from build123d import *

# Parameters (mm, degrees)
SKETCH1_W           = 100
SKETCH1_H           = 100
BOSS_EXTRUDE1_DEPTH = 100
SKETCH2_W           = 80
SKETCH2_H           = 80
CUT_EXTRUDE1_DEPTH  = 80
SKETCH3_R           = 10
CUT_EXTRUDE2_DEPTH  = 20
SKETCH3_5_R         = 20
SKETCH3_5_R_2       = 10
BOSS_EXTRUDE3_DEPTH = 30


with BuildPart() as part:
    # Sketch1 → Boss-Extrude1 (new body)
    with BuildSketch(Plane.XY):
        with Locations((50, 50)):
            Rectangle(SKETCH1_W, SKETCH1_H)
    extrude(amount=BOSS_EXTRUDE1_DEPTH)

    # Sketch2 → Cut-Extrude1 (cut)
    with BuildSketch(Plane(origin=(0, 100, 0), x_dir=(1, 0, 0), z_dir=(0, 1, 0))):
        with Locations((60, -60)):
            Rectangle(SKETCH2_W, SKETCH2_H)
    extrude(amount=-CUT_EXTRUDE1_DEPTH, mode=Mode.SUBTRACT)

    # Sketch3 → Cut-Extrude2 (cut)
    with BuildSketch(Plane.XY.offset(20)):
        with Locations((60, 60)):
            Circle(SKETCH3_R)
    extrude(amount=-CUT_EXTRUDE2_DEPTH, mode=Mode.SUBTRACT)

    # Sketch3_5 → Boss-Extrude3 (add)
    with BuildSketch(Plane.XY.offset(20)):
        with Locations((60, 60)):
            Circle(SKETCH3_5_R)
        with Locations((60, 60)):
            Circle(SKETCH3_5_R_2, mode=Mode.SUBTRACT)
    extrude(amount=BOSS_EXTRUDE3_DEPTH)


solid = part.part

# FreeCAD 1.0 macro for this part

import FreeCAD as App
import Part
import Sketcher

V = App.Vector


def add_polygon(sketch, points):
    """Adds a closed chain of lines whose ends are joined by coincident constraints."""
    first, n = sketch.GeometryCount, len(points)
    for a, b in zip(points, points[1:] + points[:1]):
        sketch.addGeometry(Part.LineSegment(App.Vector(*a, 0), App.Vector(*b, 0)), False)
    for i in range(n):
        sketch.addConstraint(Sketcher.Constraint("Coincident", first + i, 2, first + (i + 1) % n, 1))

doc = App.newDocument("Part")
params = doc.addObject("Spreadsheet::Sheet", "Params")
for row, (alias, value) in enumerate([
    ("sketch1_width", "100 mm"),
    ("pad1_length", "100 mm"),
    ("sketch2_width", "80 mm"),
    ("pocket1_length", "80 mm"),
    ("sketch3_diameter", "20 mm"),
    ("pocket2_length", "20 mm"),
    ("sketch4_diameter", "40 mm"),
    ("sketch4_diameter2", "20 mm"),
    ("pad2_length", "30 mm"),
], start=1):
    params.set(f"A{row}", alias)
    params.set(f"B{row}", "=" + value)
    params.setAlias(f"B{row}", alias)

body = doc.addObject("PartDesign::Body", "Body")

# Sketch on XY plane
sketch1 = body.newObject("Sketcher::SketchObject", "Sketch")
sketch1.AttachmentSupport = (doc.getObject("XY_Plane"), [""])
sketch1.MapMode = "FlatFace"
add_polygon(sketch1, [(0, 100), (0, 0), (100, 0), (100, 100)])  # lines 0-3
sketch1.addConstraint([
    Sketcher.Constraint("Vertical", 0),
    Sketcher.Constraint("Horizontal", 1),
    Sketcher.Constraint("Vertical", 2),
    Sketcher.Constraint("Horizontal", 3),
    Sketcher.Constraint("Coincident", 0, 2, -1, 1),
    Sketcher.Constraint("Equal", 3, 0),
    Sketcher.Constraint("DistanceX", 1, 1, 1, 2, 100.0),
])
sketch1.setExpression("Constraints[10]", "Params.sketch1_width")
pad1 = body.newObject("PartDesign::Pad", "Pad")
pad1.Profile = sketch1
pad1.setExpression("Length", "Params.pad1_length")

# Sketch on XZ plane
sketch2 = body.newObject("Sketcher::SketchObject", "Sketch001")
sketch2.AttachmentSupport = (doc.getObject("XZ_Plane"), [""])
sketch2.MapMode = "FlatFace"
sketch2.AttachmentOffset = App.Placement(V(0, 0, -100), App.Rotation())
add_polygon(sketch2, [(20, 20), (20, 100), (100, 100), (100, 20)])  # lines 0-3
sketch2.addConstraint([
    Sketcher.Constraint("Vertical", 0),
    Sketcher.Constraint("Horizontal", 1),
    Sketcher.Constraint("Vertical", 2),
    Sketcher.Constraint("Horizontal", 3),
    Sketcher.Constraint("Equal", 3, 0),
    Sketcher.Constraint("DistanceX", 1, 1, 1, 2, 80.0),
    Sketcher.Constraint("DistanceX", -1, 1, 0, 2, 20.0),
    Sketcher.Constraint("DistanceY", -1, 1, 0, 2, 100.0),
])
sketch2.setExpression("Constraints[9]", "Params.sketch2_width")
pocket1 = body.newObject("PartDesign::Pocket", "Pocket")
pocket1.Profile = sketch2
pocket1.setExpression("Length", "Params.pocket1_length")
pocket1.Reversed = True

# Sketch on XY plane
sketch3 = body.newObject("Sketcher::SketchObject", "Sketch002")
sketch3.AttachmentSupport = (doc.getObject("XY_Plane"), [""])
sketch3.MapMode = "FlatFace"
sketch3.AttachmentOffset = App.Placement(V(0, 0, 20), App.Rotation())
sketch3.addGeometry(Part.Circle(V(60, 60, 0), V(0, 0, 1), 10), False)
sketch3.addConstraint([
    Sketcher.Constraint("Diameter", 0, 20.0),
    Sketcher.Constraint("DistanceX", -1, 1, 0, 3, 60.0),
    Sketcher.Constraint("DistanceY", -1, 1, 0, 3, 60.0),
])
sketch3.setExpression("Constraints[0]", "Params.sketch3_diameter")
pocket2 = body.newObject("PartDesign::Pocket", "Pocket001")
pocket2.Profile = sketch3
pocket2.setExpression("Length", "Params.pocket2_length")

# Sketch on XY plane
sketch4 = body.newObject("Sketcher::SketchObject", "Sketch003")
sketch4.AttachmentSupport = (doc.getObject("XY_Plane"), [""])
sketch4.MapMode = "FlatFace"
sketch4.AttachmentOffset = App.Placement(V(0, 0, 20), App.Rotation())
sketch4.addGeometry([
    Part.Circle(V(60, 60, 0), V(0, 0, 1), 20),
    Part.Circle(V(60, 60, 0), V(0, 0, 1), 10),
], False)
sketch4.addConstraint([
    Sketcher.Constraint("Coincident", 1, 3, 0, 3),
    Sketcher.Constraint("Diameter", 0, 40.0),
    Sketcher.Constraint("Diameter", 1, 20.0),
    Sketcher.Constraint("DistanceX", -1, 1, 0, 3, 60.0),
    Sketcher.Constraint("DistanceY", -1, 1, 0, 3, 60.0),
])
sketch4.setExpression("Constraints[1]", "Params.sketch4_diameter")
sketch4.setExpression("Constraints[2]", "Params.sketch4_diameter2")
pad2 = body.newObject("PartDesign::Pad", "Pad001")
pad2.Profile = sketch4
pad2.setExpression("Length", "Params.pad2_length")

doc.recompute()
